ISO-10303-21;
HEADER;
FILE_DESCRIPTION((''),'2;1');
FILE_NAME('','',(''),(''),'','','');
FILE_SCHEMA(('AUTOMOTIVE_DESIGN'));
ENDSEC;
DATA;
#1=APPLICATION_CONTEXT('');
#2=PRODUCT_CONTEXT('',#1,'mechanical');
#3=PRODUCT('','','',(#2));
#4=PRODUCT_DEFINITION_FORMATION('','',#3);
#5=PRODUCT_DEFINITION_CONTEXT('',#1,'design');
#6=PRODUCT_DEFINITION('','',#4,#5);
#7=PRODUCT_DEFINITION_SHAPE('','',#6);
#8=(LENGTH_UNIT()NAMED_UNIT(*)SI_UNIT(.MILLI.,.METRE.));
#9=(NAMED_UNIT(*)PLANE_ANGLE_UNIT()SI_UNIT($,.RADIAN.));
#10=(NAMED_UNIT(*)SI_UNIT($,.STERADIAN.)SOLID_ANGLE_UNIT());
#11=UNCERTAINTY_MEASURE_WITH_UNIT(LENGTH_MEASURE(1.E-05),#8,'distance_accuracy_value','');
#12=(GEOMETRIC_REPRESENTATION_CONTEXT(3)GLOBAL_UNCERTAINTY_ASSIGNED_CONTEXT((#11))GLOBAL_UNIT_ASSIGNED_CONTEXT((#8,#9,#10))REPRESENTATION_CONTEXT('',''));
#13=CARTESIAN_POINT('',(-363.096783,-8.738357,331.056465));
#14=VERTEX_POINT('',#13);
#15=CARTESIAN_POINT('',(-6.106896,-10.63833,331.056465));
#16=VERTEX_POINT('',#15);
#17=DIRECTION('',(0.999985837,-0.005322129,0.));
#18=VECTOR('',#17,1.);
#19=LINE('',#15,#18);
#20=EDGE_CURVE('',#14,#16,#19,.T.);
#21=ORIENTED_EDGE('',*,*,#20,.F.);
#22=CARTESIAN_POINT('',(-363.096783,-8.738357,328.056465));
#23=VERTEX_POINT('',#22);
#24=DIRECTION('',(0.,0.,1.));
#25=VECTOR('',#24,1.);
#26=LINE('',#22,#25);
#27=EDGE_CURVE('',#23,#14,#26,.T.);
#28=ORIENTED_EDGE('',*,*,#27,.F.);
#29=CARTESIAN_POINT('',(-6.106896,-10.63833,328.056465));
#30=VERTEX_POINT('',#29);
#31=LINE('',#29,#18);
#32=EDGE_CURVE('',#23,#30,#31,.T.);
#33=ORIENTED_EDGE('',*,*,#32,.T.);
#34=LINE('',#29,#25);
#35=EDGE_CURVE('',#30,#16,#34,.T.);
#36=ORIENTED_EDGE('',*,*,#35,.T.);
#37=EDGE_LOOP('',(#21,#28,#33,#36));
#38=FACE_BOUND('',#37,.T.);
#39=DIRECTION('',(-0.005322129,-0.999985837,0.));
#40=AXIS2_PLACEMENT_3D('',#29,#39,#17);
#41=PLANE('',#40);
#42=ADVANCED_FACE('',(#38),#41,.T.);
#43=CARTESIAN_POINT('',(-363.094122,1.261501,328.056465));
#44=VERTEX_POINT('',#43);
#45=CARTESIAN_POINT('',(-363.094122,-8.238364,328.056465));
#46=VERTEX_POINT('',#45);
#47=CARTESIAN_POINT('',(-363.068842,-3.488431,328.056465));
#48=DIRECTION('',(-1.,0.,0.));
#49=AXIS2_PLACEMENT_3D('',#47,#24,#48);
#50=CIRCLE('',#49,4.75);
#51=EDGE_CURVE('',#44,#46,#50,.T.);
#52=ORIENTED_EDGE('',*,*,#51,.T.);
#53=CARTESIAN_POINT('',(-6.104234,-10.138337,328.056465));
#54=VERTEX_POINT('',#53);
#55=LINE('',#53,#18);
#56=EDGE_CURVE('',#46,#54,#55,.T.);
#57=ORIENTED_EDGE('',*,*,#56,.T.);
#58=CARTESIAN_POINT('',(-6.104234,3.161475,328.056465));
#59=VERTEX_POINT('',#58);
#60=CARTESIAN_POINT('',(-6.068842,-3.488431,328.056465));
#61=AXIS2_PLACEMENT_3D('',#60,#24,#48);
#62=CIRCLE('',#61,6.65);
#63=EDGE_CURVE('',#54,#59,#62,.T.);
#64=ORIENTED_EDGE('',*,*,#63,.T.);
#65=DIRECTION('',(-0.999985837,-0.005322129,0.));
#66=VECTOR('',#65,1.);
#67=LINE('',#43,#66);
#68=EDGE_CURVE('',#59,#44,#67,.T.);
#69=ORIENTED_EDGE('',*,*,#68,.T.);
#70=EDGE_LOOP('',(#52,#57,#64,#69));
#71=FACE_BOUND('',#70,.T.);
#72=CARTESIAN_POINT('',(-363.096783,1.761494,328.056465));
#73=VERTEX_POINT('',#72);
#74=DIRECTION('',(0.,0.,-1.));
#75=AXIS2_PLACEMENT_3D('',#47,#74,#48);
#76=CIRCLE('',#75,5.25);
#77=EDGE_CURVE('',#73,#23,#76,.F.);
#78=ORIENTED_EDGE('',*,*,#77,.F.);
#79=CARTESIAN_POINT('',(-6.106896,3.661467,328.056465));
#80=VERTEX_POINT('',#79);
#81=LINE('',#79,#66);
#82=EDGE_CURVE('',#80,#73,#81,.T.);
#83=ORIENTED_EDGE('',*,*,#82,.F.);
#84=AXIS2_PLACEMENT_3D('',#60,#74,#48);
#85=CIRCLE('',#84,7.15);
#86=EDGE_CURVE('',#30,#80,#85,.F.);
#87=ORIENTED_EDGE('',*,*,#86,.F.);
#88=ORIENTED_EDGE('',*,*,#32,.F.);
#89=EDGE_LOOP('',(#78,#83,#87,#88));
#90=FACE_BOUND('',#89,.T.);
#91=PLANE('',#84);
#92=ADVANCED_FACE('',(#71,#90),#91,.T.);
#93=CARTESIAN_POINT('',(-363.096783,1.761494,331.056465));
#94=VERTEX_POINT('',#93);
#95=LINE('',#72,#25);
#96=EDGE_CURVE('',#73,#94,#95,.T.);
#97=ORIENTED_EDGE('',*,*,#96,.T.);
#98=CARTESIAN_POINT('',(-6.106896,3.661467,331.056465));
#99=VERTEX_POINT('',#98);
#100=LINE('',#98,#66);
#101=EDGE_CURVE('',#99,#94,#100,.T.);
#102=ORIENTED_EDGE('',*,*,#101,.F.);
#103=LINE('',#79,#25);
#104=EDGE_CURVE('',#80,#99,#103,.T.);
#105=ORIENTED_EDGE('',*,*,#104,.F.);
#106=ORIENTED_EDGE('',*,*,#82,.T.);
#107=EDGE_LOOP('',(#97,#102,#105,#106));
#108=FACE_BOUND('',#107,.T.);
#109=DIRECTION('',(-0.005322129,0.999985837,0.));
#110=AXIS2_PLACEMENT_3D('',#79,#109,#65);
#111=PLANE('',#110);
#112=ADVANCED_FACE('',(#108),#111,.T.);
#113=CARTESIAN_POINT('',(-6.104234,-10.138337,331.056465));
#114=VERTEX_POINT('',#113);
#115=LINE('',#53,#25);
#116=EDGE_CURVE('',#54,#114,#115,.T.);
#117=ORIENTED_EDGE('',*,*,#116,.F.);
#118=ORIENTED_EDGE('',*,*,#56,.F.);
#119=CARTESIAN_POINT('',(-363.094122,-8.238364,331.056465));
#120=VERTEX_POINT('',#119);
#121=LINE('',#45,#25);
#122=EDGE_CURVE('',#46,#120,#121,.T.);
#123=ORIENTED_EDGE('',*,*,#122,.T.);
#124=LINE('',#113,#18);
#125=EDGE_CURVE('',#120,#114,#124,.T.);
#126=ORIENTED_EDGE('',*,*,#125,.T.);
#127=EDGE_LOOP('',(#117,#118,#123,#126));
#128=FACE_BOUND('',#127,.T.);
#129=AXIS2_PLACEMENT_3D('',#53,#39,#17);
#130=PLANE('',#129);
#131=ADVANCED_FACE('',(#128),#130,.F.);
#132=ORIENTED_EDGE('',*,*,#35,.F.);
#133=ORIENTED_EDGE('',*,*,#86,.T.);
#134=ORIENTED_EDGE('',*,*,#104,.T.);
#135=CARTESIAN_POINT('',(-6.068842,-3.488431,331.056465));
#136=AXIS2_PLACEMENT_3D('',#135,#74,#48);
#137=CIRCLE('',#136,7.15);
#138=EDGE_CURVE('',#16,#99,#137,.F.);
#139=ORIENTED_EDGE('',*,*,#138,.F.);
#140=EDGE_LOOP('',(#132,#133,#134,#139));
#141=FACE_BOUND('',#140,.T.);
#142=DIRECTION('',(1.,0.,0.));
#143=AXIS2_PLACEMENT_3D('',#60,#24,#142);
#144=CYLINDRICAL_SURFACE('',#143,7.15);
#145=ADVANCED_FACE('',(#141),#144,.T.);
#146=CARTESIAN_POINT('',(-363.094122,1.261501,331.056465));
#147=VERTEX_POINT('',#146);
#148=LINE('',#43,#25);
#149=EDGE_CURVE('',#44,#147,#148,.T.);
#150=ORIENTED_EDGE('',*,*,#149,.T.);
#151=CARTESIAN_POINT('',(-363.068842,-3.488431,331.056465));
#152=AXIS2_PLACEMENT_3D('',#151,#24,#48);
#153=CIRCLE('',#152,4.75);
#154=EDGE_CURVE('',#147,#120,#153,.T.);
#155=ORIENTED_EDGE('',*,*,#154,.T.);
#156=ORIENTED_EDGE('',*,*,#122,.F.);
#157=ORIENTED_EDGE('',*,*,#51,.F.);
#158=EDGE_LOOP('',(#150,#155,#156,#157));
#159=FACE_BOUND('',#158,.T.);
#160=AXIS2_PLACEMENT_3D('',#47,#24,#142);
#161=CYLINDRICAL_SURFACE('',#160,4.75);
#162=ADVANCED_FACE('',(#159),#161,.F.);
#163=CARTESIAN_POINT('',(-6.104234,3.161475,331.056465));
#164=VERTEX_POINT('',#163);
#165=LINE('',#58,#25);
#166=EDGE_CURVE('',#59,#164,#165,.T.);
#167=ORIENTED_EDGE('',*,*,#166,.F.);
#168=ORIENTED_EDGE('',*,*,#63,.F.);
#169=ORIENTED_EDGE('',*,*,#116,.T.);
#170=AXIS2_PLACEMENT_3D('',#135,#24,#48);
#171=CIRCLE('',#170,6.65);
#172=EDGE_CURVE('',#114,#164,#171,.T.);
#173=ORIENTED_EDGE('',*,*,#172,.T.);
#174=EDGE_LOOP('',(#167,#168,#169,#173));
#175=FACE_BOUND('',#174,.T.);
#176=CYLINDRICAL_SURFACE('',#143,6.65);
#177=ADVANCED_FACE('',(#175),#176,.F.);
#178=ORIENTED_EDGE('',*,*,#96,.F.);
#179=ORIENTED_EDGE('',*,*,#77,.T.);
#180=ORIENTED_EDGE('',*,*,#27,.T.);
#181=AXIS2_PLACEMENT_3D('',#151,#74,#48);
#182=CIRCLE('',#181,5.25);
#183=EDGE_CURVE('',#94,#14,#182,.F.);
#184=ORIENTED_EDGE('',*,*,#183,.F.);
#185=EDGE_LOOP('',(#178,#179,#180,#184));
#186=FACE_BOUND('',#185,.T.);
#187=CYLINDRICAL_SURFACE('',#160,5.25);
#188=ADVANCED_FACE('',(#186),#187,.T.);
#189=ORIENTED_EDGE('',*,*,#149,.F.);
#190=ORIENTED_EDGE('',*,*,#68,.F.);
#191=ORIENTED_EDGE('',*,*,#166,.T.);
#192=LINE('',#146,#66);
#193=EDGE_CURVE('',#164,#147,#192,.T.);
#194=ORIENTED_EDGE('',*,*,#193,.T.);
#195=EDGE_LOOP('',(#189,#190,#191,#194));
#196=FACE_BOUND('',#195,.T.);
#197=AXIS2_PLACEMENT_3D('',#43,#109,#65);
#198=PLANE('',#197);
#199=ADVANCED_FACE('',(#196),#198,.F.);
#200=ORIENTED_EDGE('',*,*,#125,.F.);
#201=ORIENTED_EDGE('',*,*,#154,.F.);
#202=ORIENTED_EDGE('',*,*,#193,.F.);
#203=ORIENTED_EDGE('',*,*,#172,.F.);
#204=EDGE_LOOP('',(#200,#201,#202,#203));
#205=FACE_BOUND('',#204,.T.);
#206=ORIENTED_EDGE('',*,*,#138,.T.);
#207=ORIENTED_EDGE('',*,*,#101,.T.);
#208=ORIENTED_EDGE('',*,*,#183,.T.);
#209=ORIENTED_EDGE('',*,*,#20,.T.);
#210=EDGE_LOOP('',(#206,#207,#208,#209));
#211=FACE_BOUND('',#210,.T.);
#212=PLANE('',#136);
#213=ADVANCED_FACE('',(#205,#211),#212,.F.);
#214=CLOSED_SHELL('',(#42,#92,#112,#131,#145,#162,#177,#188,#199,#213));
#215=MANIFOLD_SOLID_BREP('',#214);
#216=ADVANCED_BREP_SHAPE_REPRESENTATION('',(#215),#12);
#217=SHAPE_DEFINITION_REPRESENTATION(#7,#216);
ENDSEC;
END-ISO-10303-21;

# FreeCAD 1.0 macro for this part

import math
import FreeCAD as App
import Part
import Sketcher
Q = App.Units.Quantity

doc = App.newDocument("Part")
params = doc.addObject("Spreadsheet::Sheet", "Params")
for row, (alias, value) in enumerate([
    ("sketch1_radius", "5.25 mm"),
    ("sketch1_radius2", "7.15 mm"),
    ("sketch1_radius3", "6.65 mm"),
    ("pad1_length", "3 mm"),
], start=1):
    params.set(f"A{row}", alias)
    params.set(f"B{row}", "=" + value)
    params.setAlias(f"B{row}", alias)

body = doc.addObject("PartDesign::Body", "Body")

sketch1 = body.newObject("Sketcher::SketchObject", "Sketch")
sketch1.AttachmentSupport = (doc.getObject("XY_Plane"), [""])
sketch1.MapMode = "FlatFace"
sketch1.AttachmentOffset = App.Placement(App.Vector(0, 0, 331.056465), App.Rotation())
sketch1.addGeometry([
    Part.LineSegment(App.Vector(-6.106896, 3.661467, 0), App.Vector(-363.096783, 1.761494, 0)),
    Part.ArcOfCircle(Part.Circle(App.Vector(-363.068842, -3.488431, 0), App.Vector(0, 0, 1), 5.25), math.radians(90.304937), math.radians(269.695063)),
    Part.LineSegment(App.Vector(-363.096783, -8.738357, 0), App.Vector(-6.106896, -10.63833, 0)),
    Part.ArcOfCircle(Part.Circle(App.Vector(-6.068842, -3.488431, 0), App.Vector(0, 0, 1), 7.15), math.radians(-90.304937), math.radians(90.304937)),
    Part.LineSegment(App.Vector(-363.094122, 1.261501, 0), App.Vector(-6.104234, 3.161475, 0)),
    Part.ArcOfCircle(Part.Circle(App.Vector(-6.068842, -3.488431, 0), App.Vector(0, 0, 1), 6.65), math.radians(-90.304937), math.radians(90.304937)),
    Part.LineSegment(App.Vector(-6.104234, -10.138337, 0), App.Vector(-363.094122, -8.238364, 0)),
    Part.ArcOfCircle(Part.Circle(App.Vector(-363.068842, -3.488431, 0), App.Vector(0, 0, 1), 4.75), math.radians(90.304937), math.radians(269.695063)),
], False)
sketch1.addConstraint([
    Sketcher.Constraint("Tangent", 0, 2, 1, 1),
    Sketcher.Constraint("Tangent", 1, 2, 2, 1),
    Sketcher.Constraint("Tangent", 2, 2, 3, 1),
    Sketcher.Constraint("Tangent", 3, 2, 0, 1),
    Sketcher.Constraint("Tangent", 4, 2, 5, 2),
    Sketcher.Constraint("Tangent", 5, 1, 6, 1),
    Sketcher.Constraint("Tangent", 6, 2, 7, 2),
    Sketcher.Constraint("Tangent", 7, 1, 4, 1),
    Sketcher.Constraint("Coincident", 5, 3, 3, 3),
    Sketcher.Constraint("Coincident", 7, 3, 1, 3),
    Sketcher.Constraint("Parallel", 0, 4),
    Sketcher.Constraint("Horizontal", 1, 3, 3, 3),
    Sketcher.Constraint("Radius", 1, Q("5.25 mm")),
    Sketcher.Constraint("Radius", 3, Q("7.15 mm")),
    Sketcher.Constraint("Radius", 5, Q("6.65 mm")),
    Sketcher.Constraint("DistanceX", 1, 3, 3, 3, Q("357 mm")),
    Sketcher.Constraint("DistanceY", -1, 1, 7, 1, Q("1.261501 mm")),
    Sketcher.Constraint("DistanceX", 1, 3, -1, 1, Q("363.068842 mm")),
])
sketch1.setExpression("Constraints[12]", "Params.sketch1_radius")
sketch1.setExpression("Constraints[13]", "Params.sketch1_radius2")
sketch1.setExpression("Constraints[14]", "Params.sketch1_radius3")
pad1 = body.newObject("PartDesign::Pad", "Pad")
pad1.Profile = sketch1
pad1.setExpression("Length", "Params.pad1_length")
pad1.Reversed = True

doc.recompute()
